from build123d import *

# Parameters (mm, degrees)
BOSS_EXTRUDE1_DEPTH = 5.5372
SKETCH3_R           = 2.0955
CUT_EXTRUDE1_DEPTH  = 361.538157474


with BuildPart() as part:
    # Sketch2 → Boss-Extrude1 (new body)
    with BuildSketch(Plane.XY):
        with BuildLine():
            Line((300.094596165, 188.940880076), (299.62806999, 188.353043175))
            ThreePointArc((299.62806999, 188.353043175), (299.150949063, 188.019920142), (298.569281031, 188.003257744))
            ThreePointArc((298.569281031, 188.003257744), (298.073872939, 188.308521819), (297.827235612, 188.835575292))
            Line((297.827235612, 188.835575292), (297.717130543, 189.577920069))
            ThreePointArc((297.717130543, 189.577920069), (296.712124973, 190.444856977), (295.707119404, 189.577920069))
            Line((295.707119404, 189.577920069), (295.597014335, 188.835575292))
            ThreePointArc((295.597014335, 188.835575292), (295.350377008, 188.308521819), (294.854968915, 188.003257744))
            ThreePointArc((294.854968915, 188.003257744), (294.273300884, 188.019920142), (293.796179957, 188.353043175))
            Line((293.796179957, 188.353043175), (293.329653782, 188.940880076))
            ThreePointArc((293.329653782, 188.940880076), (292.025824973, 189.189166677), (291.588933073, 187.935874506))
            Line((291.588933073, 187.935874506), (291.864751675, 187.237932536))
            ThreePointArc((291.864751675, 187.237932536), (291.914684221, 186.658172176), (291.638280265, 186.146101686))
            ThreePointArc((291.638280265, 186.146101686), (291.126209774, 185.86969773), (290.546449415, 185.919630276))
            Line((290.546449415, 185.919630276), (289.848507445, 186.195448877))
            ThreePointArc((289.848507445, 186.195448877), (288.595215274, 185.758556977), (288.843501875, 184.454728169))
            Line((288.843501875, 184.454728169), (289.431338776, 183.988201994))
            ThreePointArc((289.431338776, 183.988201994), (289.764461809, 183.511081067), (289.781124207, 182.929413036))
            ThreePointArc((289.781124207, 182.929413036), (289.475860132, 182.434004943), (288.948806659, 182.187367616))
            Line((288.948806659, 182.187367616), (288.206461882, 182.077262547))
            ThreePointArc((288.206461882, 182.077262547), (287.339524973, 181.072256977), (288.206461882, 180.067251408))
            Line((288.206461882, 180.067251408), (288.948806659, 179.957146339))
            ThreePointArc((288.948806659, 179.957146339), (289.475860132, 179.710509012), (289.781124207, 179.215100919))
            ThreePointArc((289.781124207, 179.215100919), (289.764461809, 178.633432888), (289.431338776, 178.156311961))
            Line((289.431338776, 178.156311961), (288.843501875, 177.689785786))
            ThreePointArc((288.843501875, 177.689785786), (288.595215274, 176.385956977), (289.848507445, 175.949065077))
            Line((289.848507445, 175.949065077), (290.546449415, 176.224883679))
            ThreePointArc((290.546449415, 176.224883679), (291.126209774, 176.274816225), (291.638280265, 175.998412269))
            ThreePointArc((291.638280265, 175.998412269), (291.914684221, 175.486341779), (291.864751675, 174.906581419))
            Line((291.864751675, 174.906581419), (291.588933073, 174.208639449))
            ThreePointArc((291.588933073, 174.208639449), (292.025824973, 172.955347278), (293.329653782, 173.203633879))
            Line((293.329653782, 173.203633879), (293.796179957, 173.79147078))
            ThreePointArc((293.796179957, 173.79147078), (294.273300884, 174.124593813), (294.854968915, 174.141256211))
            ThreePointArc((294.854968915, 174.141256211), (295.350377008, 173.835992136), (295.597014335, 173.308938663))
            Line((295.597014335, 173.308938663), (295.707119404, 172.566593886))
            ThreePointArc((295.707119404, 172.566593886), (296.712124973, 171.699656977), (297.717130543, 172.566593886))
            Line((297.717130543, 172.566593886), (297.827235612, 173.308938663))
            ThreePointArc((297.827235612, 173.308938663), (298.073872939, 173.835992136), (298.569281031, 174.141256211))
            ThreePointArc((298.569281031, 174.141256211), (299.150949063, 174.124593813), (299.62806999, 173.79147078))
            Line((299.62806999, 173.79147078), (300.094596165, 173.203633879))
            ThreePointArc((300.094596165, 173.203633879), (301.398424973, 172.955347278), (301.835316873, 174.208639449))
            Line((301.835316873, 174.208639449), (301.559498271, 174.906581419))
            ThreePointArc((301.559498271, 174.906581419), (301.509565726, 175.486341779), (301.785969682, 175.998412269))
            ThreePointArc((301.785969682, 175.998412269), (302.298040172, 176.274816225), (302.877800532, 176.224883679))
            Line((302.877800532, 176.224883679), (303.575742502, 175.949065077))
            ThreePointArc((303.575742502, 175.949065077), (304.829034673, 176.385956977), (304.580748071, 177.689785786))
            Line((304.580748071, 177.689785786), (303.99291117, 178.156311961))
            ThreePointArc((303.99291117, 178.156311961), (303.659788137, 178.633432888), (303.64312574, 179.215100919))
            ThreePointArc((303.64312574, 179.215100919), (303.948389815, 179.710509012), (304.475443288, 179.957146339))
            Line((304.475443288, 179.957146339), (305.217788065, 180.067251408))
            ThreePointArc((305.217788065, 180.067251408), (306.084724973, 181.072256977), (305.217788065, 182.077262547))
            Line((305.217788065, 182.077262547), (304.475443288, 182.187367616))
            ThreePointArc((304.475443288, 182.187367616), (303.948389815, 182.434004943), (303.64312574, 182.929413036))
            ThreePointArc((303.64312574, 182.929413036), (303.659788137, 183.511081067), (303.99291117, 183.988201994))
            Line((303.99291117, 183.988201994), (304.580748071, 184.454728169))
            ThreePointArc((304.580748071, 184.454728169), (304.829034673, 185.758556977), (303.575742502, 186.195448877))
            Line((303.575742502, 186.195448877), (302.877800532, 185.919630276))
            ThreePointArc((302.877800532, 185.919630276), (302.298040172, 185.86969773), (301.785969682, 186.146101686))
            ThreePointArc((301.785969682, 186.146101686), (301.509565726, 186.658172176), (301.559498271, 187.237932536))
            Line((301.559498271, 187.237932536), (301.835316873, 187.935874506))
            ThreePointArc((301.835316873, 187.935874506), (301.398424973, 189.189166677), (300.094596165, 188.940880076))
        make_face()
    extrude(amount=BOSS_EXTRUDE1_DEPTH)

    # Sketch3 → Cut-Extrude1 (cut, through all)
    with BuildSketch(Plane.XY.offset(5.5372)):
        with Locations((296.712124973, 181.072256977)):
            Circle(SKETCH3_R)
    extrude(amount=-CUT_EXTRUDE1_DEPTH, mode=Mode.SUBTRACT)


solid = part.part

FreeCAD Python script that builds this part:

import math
import FreeCAD as App
import Part
import Sketcher
from FreeCAD import Vector
Q = App.Units.Quantity

doc = App.newDocument("Part")
body = doc.addObject("PartDesign::Body", "Body")

# Sketch on XY plane
sketch1 = body.newObject("Sketcher::SketchObject", "Sketch")
sketch1.AttachmentSupport = (doc.getObject("XY_Plane"), [""])
sketch1.MapMode = "FlatFace"
sketch1.addGeometry(Part.LineSegment(Vector(300.1, 188.9, 0), Vector(299.6, 188.4, 0)), False)
sketch1.addGeometry(Part.ArcOfCircle(Part.Circle(Vector(298.8, 189, 0), Vector(0, 0, 1), 1), math.radians(-105), math.radians(-38)), False)
sketch1.addGeometry(Part.ArcOfCircle(Part.Circle(Vector(298.8, 189, 0), Vector(0, 0, 1), 1), math.radians(-172), math.radians(-105)), False)
sketch1.addGeometry(Part.LineSegment(Vector(297.8, 188.8, 0), Vector(297.7, 189.6, 0)), False)
sketch1.addGeometry(Part.ArcOfCircle(Part.Circle(Vector(296.7, 189.4, 0), Vector(0, 0, 1), 1), math.radians(8), math.radians(172)), False)
sketch1.addGeometry(Part.LineSegment(Vector(295.7, 189.6, 0), Vector(295.6, 188.8, 0)), False)
sketch1.addGeometry(Part.ArcOfCircle(Part.Circle(Vector(294.6, 189, 0), Vector(0, 0, 1), 1), math.radians(-75), math.radians(-8)), False)
sketch1.addGeometry(Part.ArcOfCircle(Part.Circle(Vector(294.6, 189, 0), Vector(0, 0, 1), 1), math.radians(-142), math.radians(-75)), False)
sketch1.addGeometry(Part.LineSegment(Vector(293.8, 188.4, 0), Vector(293.3, 188.9, 0)), False)
sketch1.addGeometry(Part.ArcOfCircle(Part.Circle(Vector(292.5, 188.3, 0), Vector(0, 0, 1), 1), math.radians(38), math.radians(202)), False)
sketch1.addGeometry(Part.LineSegment(Vector(291.6, 187.9, 0), Vector(291.9, 187.2, 0)), False)
sketch1.addGeometry(Part.ArcOfCircle(Part.Circle(Vector(290.9, 186.9, 0), Vector(0, 0, 1), 1), math.radians(-45), math.radians(22)), False)
sketch1.addGeometry(Part.ArcOfCircle(Part.Circle(Vector(290.9, 186.9, 0), Vector(0, 0, 1), 1), math.radians(-112), math.radians(-45)), False)
sketch1.addGeometry(Part.LineSegment(Vector(290.5, 185.9, 0), Vector(289.8, 186.2, 0)), False)
sketch1.addGeometry(Part.ArcOfCircle(Part.Circle(Vector(289.5, 185.3, 0), Vector(0, 0, 1), 1), math.radians(68), math.radians(232)), False)
sketch1.addGeometry(Part.LineSegment(Vector(288.8, 184.5, 0), Vector(289.4, 184, 0)), False)
sketch1.addGeometry(Part.ArcOfCircle(Part.Circle(Vector(288.8, 183.2, 0), Vector(0, 0, 1), 1), math.radians(-15), math.radians(52)), False)
sketch1.addGeometry(Part.ArcOfCircle(Part.Circle(Vector(288.8, 183.2, 0), Vector(0, 0, 1), 1), math.radians(-82), math.radians(-15)), False)
sketch1.addGeometry(Part.LineSegment(Vector(288.9, 182.2, 0), Vector(288.2, 182.1, 0)), False)
sketch1.addGeometry(Part.ArcOfCircle(Part.Circle(Vector(288.4, 181.1, 0), Vector(0, 0, 1), 1), math.radians(98), math.radians(262)), False)
sketch1.addGeometry(Part.LineSegment(Vector(288.2, 180.1, 0), Vector(288.9, 180, 0)), False)
sketch1.addGeometry(Part.ArcOfCircle(Part.Circle(Vector(288.8, 179, 0), Vector(0, 0, 1), 1), math.radians(15), math.radians(82)), False)
sketch1.addGeometry(Part.ArcOfCircle(Part.Circle(Vector(288.8, 179, 0), Vector(0, 0, 1), 1), math.radians(-52), math.radians(15)), False)
sketch1.addGeometry(Part.LineSegment(Vector(289.4, 178.2, 0), Vector(288.8, 177.7, 0)), False)
sketch1.addGeometry(Part.ArcOfCircle(Part.Circle(Vector(289.5, 176.9, 0), Vector(0, 0, 1), 1), math.radians(128), math.radians(292)), False)
sketch1.addGeometry(Part.LineSegment(Vector(289.8, 175.9, 0), Vector(290.5, 176.2, 0)), False)
sketch1.addGeometry(Part.ArcOfCircle(Part.Circle(Vector(290.9, 175.3, 0), Vector(0, 0, 1), 1), math.radians(45), math.radians(112)), False)
sketch1.addGeometry(Part.ArcOfCircle(Part.Circle(Vector(290.9, 175.3, 0), Vector(0, 0, 1), 1), math.radians(-22), math.radians(45)), False)
sketch1.addGeometry(Part.LineSegment(Vector(291.9, 174.9, 0), Vector(291.6, 174.2, 0)), False)
sketch1.addGeometry(Part.ArcOfCircle(Part.Circle(Vector(292.5, 173.8, 0), Vector(0, 0, 1), 1), math.radians(158), math.radians(322)), False)
sketch1.addGeometry(Part.LineSegment(Vector(293.3, 173.2, 0), Vector(293.8, 173.8, 0)), False)
sketch1.addGeometry(Part.ArcOfCircle(Part.Circle(Vector(294.6, 173.2, 0), Vector(0, 0, 1), 1), math.radians(75), math.radians(142)), False)
sketch1.addGeometry(Part.ArcOfCircle(Part.Circle(Vector(294.6, 173.2, 0), Vector(0, 0, 1), 1), math.radians(8), math.radians(75)), False)
sketch1.addGeometry(Part.LineSegment(Vector(295.6, 173.3, 0), Vector(295.7, 172.6, 0)), False)
sketch1.addGeometry(Part.ArcOfCircle(Part.Circle(Vector(296.7, 172.7, 0), Vector(0, 0, 1), 1), math.radians(-172), math.radians(-8)), False)
sketch1.addGeometry(Part.LineSegment(Vector(297.7, 172.6, 0), Vector(297.8, 173.3, 0)), False)
sketch1.addGeometry(Part.ArcOfCircle(Part.Circle(Vector(298.8, 173.2, 0), Vector(0, 0, 1), 1), math.radians(105), math.radians(172)), False)
sketch1.addGeometry(Part.ArcOfCircle(Part.Circle(Vector(298.8, 173.2, 0), Vector(0, 0, 1), 1), math.radians(38), math.radians(105)), False)
sketch1.addGeometry(Part.LineSegment(Vector(299.6, 173.8, 0), Vector(300.1, 173.2, 0)), False)
sketch1.addGeometry(Part.ArcOfCircle(Part.Circle(Vector(300.9, 173.8, 0), Vector(0, 0, 1), 1), math.radians(-142), math.radians(22)), False)
sketch1.addGeometry(Part.LineSegment(Vector(301.8, 174.2, 0), Vector(301.6, 174.9, 0)), False)
sketch1.addGeometry(Part.ArcOfCircle(Part.Circle(Vector(302.5, 175.3, 0), Vector(0, 0, 1), 1), math.radians(135), math.radians(202)), False)
sketch1.addGeometry(Part.ArcOfCircle(Part.Circle(Vector(302.5, 175.3, 0), Vector(0, 0, 1), 1), math.radians(68), math.radians(135)), False)
sketch1.addGeometry(Part.LineSegment(Vector(302.9, 176.2, 0), Vector(303.6, 175.9, 0)), False)
sketch1.addGeometry(Part.ArcOfCircle(Part.Circle(Vector(303.9, 176.9, 0), Vector(0, 0, 1), 1), math.radians(-112), math.radians(52)), False)
sketch1.addGeometry(Part.LineSegment(Vector(304.6, 177.7, 0), Vector(304, 178.2, 0)), False)
sketch1.addGeometry(Part.ArcOfCircle(Part.Circle(Vector(304.6, 179, 0), Vector(0, 0, 1), 1), math.radians(165), math.radians(232)), False)
sketch1.addGeometry(Part.ArcOfCircle(Part.Circle(Vector(304.6, 179, 0), Vector(0, 0, 1), 1), math.radians(98), math.radians(165)), False)
sketch1.addGeometry(Part.LineSegment(Vector(304.5, 180, 0), Vector(305.2, 180.1, 0)), False)
sketch1.addGeometry(Part.ArcOfCircle(Part.Circle(Vector(305.1, 181.1, 0), Vector(0, 0, 1), 1), math.radians(-82), math.radians(82)), False)
sketch1.addGeometry(Part.LineSegment(Vector(305.2, 182.1, 0), Vector(304.5, 182.2, 0)), False)
sketch1.addGeometry(Part.ArcOfCircle(Part.Circle(Vector(304.6, 183.2, 0), Vector(0, 0, 1), 1), math.radians(-165), math.radians(-98)), False)
sketch1.addGeometry(Part.ArcOfCircle(Part.Circle(Vector(304.6, 183.2, 0), Vector(0, 0, 1), 1), math.radians(128), math.radians(195)), False)
sketch1.addGeometry(Part.LineSegment(Vector(304, 184, 0), Vector(304.6, 184.5, 0)), False)
sketch1.addGeometry(Part.ArcOfCircle(Part.Circle(Vector(303.9, 185.3, 0), Vector(0, 0, 1), 1), math.radians(-52), math.radians(112)), False)
sketch1.addGeometry(Part.LineSegment(Vector(303.6, 186.2, 0), Vector(302.9, 185.9, 0)), False)
sketch1.addGeometry(Part.ArcOfCircle(Part.Circle(Vector(302.5, 186.9, 0), Vector(0, 0, 1), 1), math.radians(-135), math.radians(-68)), False)
sketch1.addGeometry(Part.ArcOfCircle(Part.Circle(Vector(302.5, 186.9, 0), Vector(0, 0, 1), 1), math.radians(158), math.radians(225)), False)
sketch1.addGeometry(Part.LineSegment(Vector(301.6, 187.2, 0), Vector(301.8, 187.9, 0)), False)
sketch1.addGeometry(Part.ArcOfCircle(Part.Circle(Vector(300.9, 188.3, 0), Vector(0, 0, 1), 1), math.radians(-22), math.radians(142)), False)
sketch1.addConstraint(Sketcher.Constraint("Tangent", 0, 2, 1, 2))
sketch1.addConstraint(Sketcher.Constraint("Tangent", 1, 1, 2, 2))
sketch1.addConstraint(Sketcher.Constraint("Tangent", 2, 1, 3, 1))
sketch1.addConstraint(Sketcher.Constraint("Tangent", 3, 2, 4, 1))
sketch1.addConstraint(Sketcher.Constraint("Tangent", 4, 2, 5, 1))
sketch1.addConstraint(Sketcher.Constraint("Tangent", 5, 2, 6, 2))
sketch1.addConstraint(Sketcher.Constraint("Tangent", 6, 1, 7, 2))
sketch1.addConstraint(Sketcher.Constraint("Tangent", 7, 1, 8, 1))
sketch1.addConstraint(Sketcher.Constraint("Tangent", 8, 2, 9, 1))
sketch1.addConstraint(Sketcher.Constraint("Tangent", 9, 2, 10, 1))
sketch1.addConstraint(Sketcher.Constraint("Tangent", 10, 2, 11, 2))
sketch1.addConstraint(Sketcher.Constraint("Tangent", 11, 1, 12, 2))
sketch1.addConstraint(Sketcher.Constraint("Tangent", 12, 1, 13, 1))
sketch1.addConstraint(Sketcher.Constraint("Tangent", 13, 2, 14, 1))
sketch1.addConstraint(Sketcher.Constraint("Tangent", 14, 2, 15, 1))
sketch1.addConstraint(Sketcher.Constraint("Tangent", 15, 2, 16, 2))
sketch1.addConstraint(Sketcher.Constraint("Tangent", 16, 1, 17, 2))
sketch1.addConstraint(Sketcher.Constraint("Tangent", 17, 1, 18, 1))
sketch1.addConstraint(Sketcher.Constraint("Tangent", 18, 2, 19, 1))
sketch1.addConstraint(Sketcher.Constraint("Tangent", 19, 2, 20, 1))
sketch1.addConstraint(Sketcher.Constraint("Tangent", 20, 2, 21, 2))
sketch1.addConstraint(Sketcher.Constraint("Tangent", 21, 1, 22, 2))
sketch1.addConstraint(Sketcher.Constraint("Tangent", 22, 1, 23, 1))
sketch1.addConstraint(Sketcher.Constraint("Tangent", 23, 2, 24, 1))
sketch1.addConstraint(Sketcher.Constraint("Tangent", 24, 2, 25, 1))
sketch1.addConstraint(Sketcher.Constraint("Tangent", 25, 2, 26, 2))
sketch1.addConstraint(Sketcher.Constraint("Tangent", 26, 1, 27, 2))
sketch1.addConstraint(Sketcher.Constraint("Tangent", 27, 1, 28, 1))
sketch1.addConstraint(Sketcher.Constraint("Tangent", 28, 2, 29, 1))
sketch1.addConstraint(Sketcher.Constraint("Tangent", 29, 2, 30, 1))
sketch1.addConstraint(Sketcher.Constraint("Tangent", 30, 2, 31, 2))
sketch1.addConstraint(Sketcher.Constraint("Tangent", 31, 1, 32, 2))
sketch1.addConstraint(Sketcher.Constraint("Tangent", 32, 1, 33, 1))
sketch1.addConstraint(Sketcher.Constraint("Tangent", 33, 2, 34, 1))
sketch1.addConstraint(Sketcher.Constraint("Tangent", 34, 2, 35, 1))
sketch1.addConstraint(Sketcher.Constraint("Tangent", 35, 2, 36, 2))
sketch1.addConstraint(Sketcher.Constraint("Tangent", 36, 1, 37, 2))
sketch1.addConstraint(Sketcher.Constraint("Tangent", 37, 1, 38, 1))
sketch1.addConstraint(Sketcher.Constraint("Tangent", 38, 2, 39, 1))
sketch1.addConstraint(Sketcher.Constraint("Tangent", 39, 2, 40, 1))
sketch1.addConstraint(Sketcher.Constraint("Tangent", 40, 2, 41, 2))
sketch1.addConstraint(Sketcher.Constraint("Tangent", 41, 1, 42, 2))
sketch1.addConstraint(Sketcher.Constraint("Tangent", 42, 1, 43, 1))
sketch1.addConstraint(Sketcher.Constraint("Tangent", 43, 2, 44, 1))
sketch1.addConstraint(Sketcher.Constraint("Tangent", 44, 2, 45, 1))
sketch1.addConstraint(Sketcher.Constraint("Tangent", 45, 2, 46, 2))
sketch1.addConstraint(Sketcher.Constraint("Tangent", 46, 1, 47, 2))
sketch1.addConstraint(Sketcher.Constraint("Tangent", 47, 1, 48, 1))
sketch1.addConstraint(Sketcher.Constraint("Tangent", 48, 2, 49, 1))
sketch1.addConstraint(Sketcher.Constraint("Tangent", 49, 2, 50, 1))
sketch1.addConstraint(Sketcher.Constraint("Tangent", 50, 2, 51, 2))
sketch1.addConstraint(Sketcher.Constraint("Tangent", 51, 1, 52, 2))
sketch1.addConstraint(Sketcher.Constraint("Tangent", 52, 1, 53, 1))
sketch1.addConstraint(Sketcher.Constraint("Tangent", 53, 2, 54, 1))
sketch1.addConstraint(Sketcher.Constraint("Tangent", 54, 2, 55, 1))
sketch1.addConstraint(Sketcher.Constraint("Tangent", 55, 2, 56, 2))
sketch1.addConstraint(Sketcher.Constraint("Tangent", 56, 1, 57, 2))
sketch1.addConstraint(Sketcher.Constraint("Tangent", 57, 1, 58, 1))
sketch1.addConstraint(Sketcher.Constraint("Tangent", 58, 2, 59, 1))
sketch1.addConstraint(Sketcher.Constraint("Tangent", 59, 2, 0, 1))
sketch1.addConstraint(Sketcher.Constraint("Equal", 1, 2))
sketch1.addConstraint(Sketcher.Constraint("Equal", 2, 4))
sketch1.addConstraint(Sketcher.Constraint("Equal", 4, 6))
sketch1.addConstraint(Sketcher.Constraint("Equal", 6, 7))
sketch1.addConstraint(Sketcher.Constraint("Equal", 7, 9))
sketch1.addConstraint(Sketcher.Constraint("Equal", 9, 11))
sketch1.addConstraint(Sketcher.Constraint("Equal", 11, 12))
sketch1.addConstraint(Sketcher.Constraint("Equal", 12, 14))
sketch1.addConstraint(Sketcher.Constraint("Equal", 14, 16))
sketch1.addConstraint(Sketcher.Constraint("Equal", 16, 17))
sketch1.addConstraint(Sketcher.Constraint("Equal", 17, 19))
sketch1.addConstraint(Sketcher.Constraint("Equal", 19, 21))
sketch1.addConstraint(Sketcher.Constraint("Equal", 21, 22))
sketch1.addConstraint(Sketcher.Constraint("Equal", 22, 24))
sketch1.addConstraint(Sketcher.Constraint("Equal", 24, 26))
sketch1.addConstraint(Sketcher.Constraint("Equal", 26, 27))
sketch1.addConstraint(Sketcher.Constraint("Equal", 27, 29))
sketch1.addConstraint(Sketcher.Constraint("Equal", 29, 31))
sketch1.addConstraint(Sketcher.Constraint("Equal", 31, 32))
sketch1.addConstraint(Sketcher.Constraint("Equal", 32, 34))
sketch1.addConstraint(Sketcher.Constraint("Equal", 34, 36))
sketch1.addConstraint(Sketcher.Constraint("Equal", 36, 37))
sketch1.addConstraint(Sketcher.Constraint("Equal", 37, 39))
sketch1.addConstraint(Sketcher.Constraint("Equal", 39, 41))
sketch1.addConstraint(Sketcher.Constraint("Equal", 41, 42))
sketch1.addConstraint(Sketcher.Constraint("Equal", 42, 44))
sketch1.addConstraint(Sketcher.Constraint("Equal", 44, 46))
sketch1.addConstraint(Sketcher.Constraint("Equal", 46, 47))
sketch1.addConstraint(Sketcher.Constraint("Equal", 47, 49))
sketch1.addConstraint(Sketcher.Constraint("Equal", 49, 51))
sketch1.addConstraint(Sketcher.Constraint("Equal", 51, 52))
sketch1.addConstraint(Sketcher.Constraint("Equal", 52, 54))
sketch1.addConstraint(Sketcher.Constraint("Equal", 54, 56))
sketch1.addConstraint(Sketcher.Constraint("Equal", 56, 57))
sketch1.addConstraint(Sketcher.Constraint("Equal", 57, 59))
sketch1.addConstraint(Sketcher.Constraint("Perpendicular", 0, 15))
sketch1.addConstraint(Sketcher.Constraint("Perpendicular", 3, 18))
sketch1.addConstraint(Sketcher.Constraint("Perpendicular", 5, 20))
sketch1.addConstraint(Sketcher.Constraint("Perpendicular", 8, 23))
sketch1.addConstraint(Sketcher.Constraint("Perpendicular", 10, 25))
sketch1.addConstraint(Sketcher.Constraint("Perpendicular", 13, 28))
sketch1.addConstraint(Sketcher.Constraint("Perpendicular", 15, 30))
sketch1.addConstraint(Sketcher.Constraint("Perpendicular", 18, 33))
sketch1.addConstraint(Sketcher.Constraint("Perpendicular", 20, 35))
sketch1.addConstraint(Sketcher.Constraint("Perpendicular", 23, 38))
sketch1.addConstraint(Sketcher.Constraint("Perpendicular", 25, 40))
sketch1.addConstraint(Sketcher.Constraint("Perpendicular", 28, 43))
sketch1.addConstraint(Sketcher.Constraint("Perpendicular", 30, 45))
sketch1.addConstraint(Sketcher.Constraint("Perpendicular", 33, 48))
sketch1.addConstraint(Sketcher.Constraint("Perpendicular", 35, 50))
sketch1.addConstraint(Sketcher.Constraint("Perpendicular", 38, 53))
sketch1.addConstraint(Sketcher.Constraint("Perpendicular", 40, 55))
sketch1.addConstraint(Sketcher.Constraint("Perpendicular", 43, 58))
sketch1.addConstraint(Sketcher.Constraint("Horizontal", 2, 3, 6, 3))
sketch1.addConstraint(Sketcher.Constraint("Horizontal", 32, 3, 36, 3))
sketch1.addConstraint(Sketcher.Constraint("Horizontal", 29, 3, 39, 3))
sketch1.addConstraint(Sketcher.Constraint("Horizontal", 27, 3, 41, 3))
sketch1.addConstraint(Sketcher.Constraint("Horizontal", 24, 3, 44, 3))
sketch1.addConstraint(Sketcher.Constraint("Horizontal", 22, 3, 46, 3))
sketch1.addConstraint(Sketcher.Constraint("Horizontal", 19, 3, 49, 3))
sketch1.addConstraint(Sketcher.Constraint("Horizontal", 17, 3, 51, 3))
sketch1.addConstraint(Sketcher.Constraint("Horizontal", 14, 3, 54, 3))
sketch1.addConstraint(Sketcher.Constraint("Horizontal", 12, 3, 56, 3))
sketch1.addConstraint(Sketcher.Constraint("Horizontal", 9, 3, 59, 3))
sketch1.addConstraint(Sketcher.Constraint("Horizontal", 3, 2, 4, 2))
sketch1.addConstraint(Sketcher.Constraint("Horizontal", 1, 1, 6, 1))
sketch1.addConstraint(Sketcher.Constraint("Horizontal", 0, 2, 7, 1))
sketch1.addConstraint(Sketcher.Constraint("Horizontal", 31, 1, 36, 1))
sketch1.addConstraint(Sketcher.Constraint("Horizontal", 28, 2, 39, 2))
sketch1.addConstraint(Sketcher.Constraint("Horizontal", 26, 1, 41, 1))
sketch1.addConstraint(Sketcher.Constraint("Horizontal", 21, 1, 46, 1))
sketch1.addConstraint(Sketcher.Constraint("Horizontal", 16, 1, 51, 1))
sketch1.addConstraint(Sketcher.Constraint("Horizontal", 11, 1, 56, 1))
sketch1.addConstraint(Sketcher.Constraint("Vertical", 17, 3, 21, 3))
sketch1.addConstraint(Sketcher.Constraint("Vertical", 14, 3, 24, 3))
sketch1.addConstraint(Sketcher.Constraint("Vertical", 12, 3, 26, 3))
sketch1.addConstraint(Sketcher.Constraint("Vertical", 9, 3, 29, 3))
sketch1.addConstraint(Sketcher.Constraint("Vertical", 7, 3, 31, 3))
sketch1.addConstraint(Sketcher.Constraint("Vertical", 16, 1, 21, 1))
sketch1.addConstraint(Sketcher.Constraint("Vertical", 11, 1, 26, 1))
sketch1.addConstraint(Sketcher.Constraint("Vertical", 6, 1, 31, 1))
sketch1.addConstraint(Sketcher.Constraint("Equal", 0, 3))
sketch1.addConstraint(Sketcher.Constraint("Equal", 8, 10))
sketch1.addConstraint(Sketcher.Constraint("Equal", 10, 13))
sketch1.addConstraint(Sketcher.Constraint("Equal", 13, 15))
sketch1.addConstraint(Sketcher.Constraint("Equal", 15, 18))
sketch1.addConstraint(Sketcher.Constraint("Radius", 1, Q("0.04 in")))
sketch1.addConstraint(Sketcher.Constraint("DistanceY", -1, 1, 11, 1, 186.146102))
sketch1.addConstraint(Sketcher.Constraint("DistanceX", -1, 1, 14, 2, 288.843502))
sketch1.addConstraint(Sketcher.Constraint("DistanceY", -1, 1, 15, 2, 183.988202))
sketch1.addConstraint(Sketcher.Constraint("DistanceY", -1, 1, 21, 1, 179.215101))
sketch1.addConstraint(Sketcher.Constraint("DistanceX", -1, 1, 40, 2, 301.559498))
sketch1.addConstraint(Sketcher.Constraint("DistanceX", -1, 1, 42, 1, 302.877801))
sketch1.addConstraint(Sketcher.Constraint("DistanceX", -1, 1, 1, 3, 298.832241))
sketch1.addConstraint(Sketcher.Constraint("DistanceY", -1, 1, 1, 3, 188.984638))
sketch1.addConstraint(Sketcher.Constraint("DistanceX", -1, 1, 1, 1, 298.569281))
pad1 = body.newObject("PartDesign::Pad", "Pad")
pad1.Profile = sketch1
pad1.Length = Q("0.218 in")

# Sketch on XY plane
sketch2 = body.newObject("Sketcher::SketchObject", "Sketch001")
sketch2.AttachmentSupport = (doc.getObject("XY_Plane"), [""])
sketch2.MapMode = "FlatFace"
sketch2.AttachmentOffset = App.Placement(Vector(0, 0, 0.218 * 25.4), App.Rotation())
sketch2.addGeometry(Part.Circle(Vector(296.7, 181.1, 0), Vector(0, 0, 1), 2.1), False)
sketch2.addConstraint(Sketcher.Constraint("Diameter", 0, Q("0.165 in")))
sketch2.addConstraint(Sketcher.Constraint("DistanceX", -1, 1, 0, 3, 296.712125))
sketch2.addConstraint(Sketcher.Constraint("DistanceY", -1, 1, 0, 3, 181.072257))
pocket1 = body.newObject("PartDesign::Pocket", "Pocket")
pocket1.Profile = sketch2
pocket1.Type = "ThroughAll"

doc.recompute()
